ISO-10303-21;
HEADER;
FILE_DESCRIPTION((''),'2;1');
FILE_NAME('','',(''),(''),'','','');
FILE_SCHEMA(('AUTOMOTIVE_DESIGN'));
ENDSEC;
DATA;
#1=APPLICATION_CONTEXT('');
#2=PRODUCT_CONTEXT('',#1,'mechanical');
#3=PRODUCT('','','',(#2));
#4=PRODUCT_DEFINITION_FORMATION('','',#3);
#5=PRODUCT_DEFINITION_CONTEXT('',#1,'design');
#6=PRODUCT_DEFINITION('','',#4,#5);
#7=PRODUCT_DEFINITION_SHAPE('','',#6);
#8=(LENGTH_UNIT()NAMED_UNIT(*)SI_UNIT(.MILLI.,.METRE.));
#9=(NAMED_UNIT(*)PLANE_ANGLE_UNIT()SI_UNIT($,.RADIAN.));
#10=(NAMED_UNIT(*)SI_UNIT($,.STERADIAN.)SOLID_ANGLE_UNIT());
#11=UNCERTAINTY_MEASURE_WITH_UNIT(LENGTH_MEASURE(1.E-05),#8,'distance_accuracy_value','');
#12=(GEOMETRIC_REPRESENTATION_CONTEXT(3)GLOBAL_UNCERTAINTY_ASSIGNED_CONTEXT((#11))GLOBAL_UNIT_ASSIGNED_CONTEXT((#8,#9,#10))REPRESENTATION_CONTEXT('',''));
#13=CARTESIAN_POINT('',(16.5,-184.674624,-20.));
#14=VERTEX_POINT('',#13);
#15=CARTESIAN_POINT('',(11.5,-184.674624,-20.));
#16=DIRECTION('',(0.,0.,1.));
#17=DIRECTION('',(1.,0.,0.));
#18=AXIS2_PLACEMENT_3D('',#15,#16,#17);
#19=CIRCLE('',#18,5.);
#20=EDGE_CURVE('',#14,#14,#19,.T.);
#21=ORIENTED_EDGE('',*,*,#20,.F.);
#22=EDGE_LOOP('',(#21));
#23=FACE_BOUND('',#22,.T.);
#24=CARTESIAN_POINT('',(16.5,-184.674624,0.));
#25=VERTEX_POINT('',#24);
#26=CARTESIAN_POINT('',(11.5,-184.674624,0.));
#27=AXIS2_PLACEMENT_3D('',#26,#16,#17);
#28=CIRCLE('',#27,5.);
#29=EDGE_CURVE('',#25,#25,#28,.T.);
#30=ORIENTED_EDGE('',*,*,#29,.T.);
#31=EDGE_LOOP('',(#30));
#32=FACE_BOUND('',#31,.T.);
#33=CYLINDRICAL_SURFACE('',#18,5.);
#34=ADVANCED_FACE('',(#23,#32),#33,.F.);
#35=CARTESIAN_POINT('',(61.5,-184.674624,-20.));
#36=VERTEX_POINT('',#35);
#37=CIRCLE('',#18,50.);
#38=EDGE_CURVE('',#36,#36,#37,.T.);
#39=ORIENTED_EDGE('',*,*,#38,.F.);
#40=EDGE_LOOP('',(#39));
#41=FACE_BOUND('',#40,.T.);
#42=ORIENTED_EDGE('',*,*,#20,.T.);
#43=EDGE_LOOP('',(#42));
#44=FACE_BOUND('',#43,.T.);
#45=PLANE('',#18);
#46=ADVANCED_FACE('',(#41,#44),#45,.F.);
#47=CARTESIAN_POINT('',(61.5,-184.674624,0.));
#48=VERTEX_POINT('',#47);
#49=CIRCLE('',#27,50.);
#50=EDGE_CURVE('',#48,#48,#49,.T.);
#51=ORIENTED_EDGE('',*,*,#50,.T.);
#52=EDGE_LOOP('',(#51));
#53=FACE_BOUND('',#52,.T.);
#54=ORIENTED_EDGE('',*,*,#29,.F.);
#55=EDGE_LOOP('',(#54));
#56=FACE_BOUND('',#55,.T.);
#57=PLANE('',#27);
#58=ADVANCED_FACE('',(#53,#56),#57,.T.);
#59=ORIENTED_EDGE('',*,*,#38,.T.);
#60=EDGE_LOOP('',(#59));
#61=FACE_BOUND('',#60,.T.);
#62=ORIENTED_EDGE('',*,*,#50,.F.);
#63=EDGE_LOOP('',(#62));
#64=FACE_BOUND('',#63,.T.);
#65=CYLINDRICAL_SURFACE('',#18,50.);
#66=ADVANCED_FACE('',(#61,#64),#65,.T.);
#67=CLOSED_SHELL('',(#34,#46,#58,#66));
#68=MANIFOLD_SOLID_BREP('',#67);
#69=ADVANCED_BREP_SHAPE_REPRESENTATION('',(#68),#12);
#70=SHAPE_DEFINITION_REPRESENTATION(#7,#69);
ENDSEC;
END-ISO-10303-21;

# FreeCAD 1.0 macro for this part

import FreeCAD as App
import Part
import Sketcher
Q = App.Units.Quantity

doc = App.newDocument("Part")
body = doc.addObject("PartDesign::Body", "Body")

sketch1 = body.newObject("Sketcher::SketchObject", "Sketch")
sketch1.AttachmentSupport = (doc.getObject("XY_Plane"), [""])
sketch1.MapMode = "FlatFace"
sketch1.addGeometry(Part.Circle(App.Vector(11.5, -184.674624, 0), App.Vector(0, 0, 1), 50), False)
sketch1.addGeometry(Part.Circle(App.Vector(11.5, -184.674624, 0), App.Vector(0, 0, 1), 5), False)
sketch1.addConstraint(Sketcher.Constraint("Coincident", 1, 3, 0, 3))
sketch1.addConstraint(Sketcher.Constraint("Diameter", 0, Q("100 mm")))
sketch1.addConstraint(Sketcher.Constraint("Diameter", 1, Q("10 mm")))
sketch1.addConstraint(Sketcher.Constraint("DistanceX", -1, 1, 0, 3, Q("11.5 mm")))
sketch1.addConstraint(Sketcher.Constraint("DistanceY", 0, 3, -1, 1, Q("184.674624 mm")))
pad1 = body.newObject("PartDesign::Pad", "Pad")
pad1.Profile = sketch1
pad1.Length = 20
pad1.Reversed = True

doc.recompute()
